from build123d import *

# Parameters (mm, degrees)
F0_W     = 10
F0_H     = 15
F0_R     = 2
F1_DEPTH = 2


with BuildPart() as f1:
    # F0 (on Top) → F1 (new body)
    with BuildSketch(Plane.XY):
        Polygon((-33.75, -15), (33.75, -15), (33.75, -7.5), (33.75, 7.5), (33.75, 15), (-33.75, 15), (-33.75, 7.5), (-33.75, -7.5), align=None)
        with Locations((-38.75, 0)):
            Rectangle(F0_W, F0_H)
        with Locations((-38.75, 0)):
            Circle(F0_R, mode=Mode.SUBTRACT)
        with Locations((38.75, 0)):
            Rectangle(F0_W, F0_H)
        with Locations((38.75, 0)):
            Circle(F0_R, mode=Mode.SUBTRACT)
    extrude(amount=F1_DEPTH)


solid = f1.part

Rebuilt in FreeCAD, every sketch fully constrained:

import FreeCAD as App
import Part
import Sketcher

V = App.Vector


def add_polygon(sketch, points):
    """Adds a closed chain of lines whose ends are joined by coincident constraints."""
    first, n = sketch.GeometryCount, len(points)
    for a, b in zip(points, points[1:] + points[:1]):
        sketch.addGeometry(Part.LineSegment(App.Vector(*a, 0), App.Vector(*b, 0)), False)
    for i in range(n):
        sketch.addConstraint(Sketcher.Constraint("Coincident", first + i, 2, first + (i + 1) % n, 1))

doc = App.newDocument("Part")
body = doc.addObject("PartDesign::Body", "Body")

sketch1 = body.newObject("Sketcher::SketchObject", "Sketch")
sketch1.AttachmentSupport = (doc.getObject("XY_Plane"), [""])
sketch1.MapMode = "FlatFace"
add_polygon(sketch1, [(-33.8, -15), (33.8, -15), (33.8, -7.5), (43.8, -7.5), (43.8, 7.5), (33.8, 7.5), (33.8, 15), (-33.8, 15), (-33.8, 7.5), (-43.8, 7.5), (-43.8, -7.5), (-33.8, -7.5)])
sketch1.addGeometry(Part.Circle(V(-38.8, 0, 0), V(0, 0, 1), 2), False)
sketch1.addGeometry(Part.Circle(V(38.8, 0, 0), V(0, 0, 1), 2), False)
sketch1.addConstraint([
    Sketcher.Constraint("Horizontal", 0),
    Sketcher.Constraint("Vertical", 1),
    Sketcher.Constraint("Horizontal", 2),
    Sketcher.Constraint("Vertical", 3),
    Sketcher.Constraint("Horizontal", 4),
    Sketcher.Constraint("Vertical", 5),
    Sketcher.Constraint("Horizontal", 6),
    Sketcher.Constraint("Vertical", 7),
    Sketcher.Constraint("Horizontal", 8),
    Sketcher.Constraint("Vertical", 9),
    Sketcher.Constraint("Horizontal", 10),
    Sketcher.Constraint("Vertical", 11),
    Sketcher.Constraint("Equal", 12, 13),
    Sketcher.Constraint("Symmetric", 12, 3, 13, 3, -1, 1),
    Sketcher.Constraint("Symmetric", 0, 2, 6, 2, -1, 1),
    Sketcher.Constraint("Symmetric", 2, 2, 8, 2, -1, 1),
    Sketcher.Constraint("Symmetric", 4, 2, 10, 2, -1, 1),
    Sketcher.Constraint("Symmetric", 4, 2, 7, 2, -2),
    Sketcher.Constraint("PointOnObject", 12, 3, -1),
    Sketcher.Constraint("Diameter", 12, 4.0),
    Sketcher.Constraint("DistanceX", 2, 1, 2, 2, 10.0),
    Sketcher.Constraint("DistanceY", 3, 1, 3, 2, 15.0),
    Sketcher.Constraint("DistanceX", 0, 1, 0, 2, 67.5),
    Sketcher.Constraint("DistanceY", 1, 1, 1, 2, 7.5),
    Sketcher.Constraint("DistanceX", 0, 2, 13, 3, 5.0),
])
pad1 = body.newObject("PartDesign::Pad", "Pad")
pad1.Profile = sketch1
pad1.Length = 2

doc.recompute()
